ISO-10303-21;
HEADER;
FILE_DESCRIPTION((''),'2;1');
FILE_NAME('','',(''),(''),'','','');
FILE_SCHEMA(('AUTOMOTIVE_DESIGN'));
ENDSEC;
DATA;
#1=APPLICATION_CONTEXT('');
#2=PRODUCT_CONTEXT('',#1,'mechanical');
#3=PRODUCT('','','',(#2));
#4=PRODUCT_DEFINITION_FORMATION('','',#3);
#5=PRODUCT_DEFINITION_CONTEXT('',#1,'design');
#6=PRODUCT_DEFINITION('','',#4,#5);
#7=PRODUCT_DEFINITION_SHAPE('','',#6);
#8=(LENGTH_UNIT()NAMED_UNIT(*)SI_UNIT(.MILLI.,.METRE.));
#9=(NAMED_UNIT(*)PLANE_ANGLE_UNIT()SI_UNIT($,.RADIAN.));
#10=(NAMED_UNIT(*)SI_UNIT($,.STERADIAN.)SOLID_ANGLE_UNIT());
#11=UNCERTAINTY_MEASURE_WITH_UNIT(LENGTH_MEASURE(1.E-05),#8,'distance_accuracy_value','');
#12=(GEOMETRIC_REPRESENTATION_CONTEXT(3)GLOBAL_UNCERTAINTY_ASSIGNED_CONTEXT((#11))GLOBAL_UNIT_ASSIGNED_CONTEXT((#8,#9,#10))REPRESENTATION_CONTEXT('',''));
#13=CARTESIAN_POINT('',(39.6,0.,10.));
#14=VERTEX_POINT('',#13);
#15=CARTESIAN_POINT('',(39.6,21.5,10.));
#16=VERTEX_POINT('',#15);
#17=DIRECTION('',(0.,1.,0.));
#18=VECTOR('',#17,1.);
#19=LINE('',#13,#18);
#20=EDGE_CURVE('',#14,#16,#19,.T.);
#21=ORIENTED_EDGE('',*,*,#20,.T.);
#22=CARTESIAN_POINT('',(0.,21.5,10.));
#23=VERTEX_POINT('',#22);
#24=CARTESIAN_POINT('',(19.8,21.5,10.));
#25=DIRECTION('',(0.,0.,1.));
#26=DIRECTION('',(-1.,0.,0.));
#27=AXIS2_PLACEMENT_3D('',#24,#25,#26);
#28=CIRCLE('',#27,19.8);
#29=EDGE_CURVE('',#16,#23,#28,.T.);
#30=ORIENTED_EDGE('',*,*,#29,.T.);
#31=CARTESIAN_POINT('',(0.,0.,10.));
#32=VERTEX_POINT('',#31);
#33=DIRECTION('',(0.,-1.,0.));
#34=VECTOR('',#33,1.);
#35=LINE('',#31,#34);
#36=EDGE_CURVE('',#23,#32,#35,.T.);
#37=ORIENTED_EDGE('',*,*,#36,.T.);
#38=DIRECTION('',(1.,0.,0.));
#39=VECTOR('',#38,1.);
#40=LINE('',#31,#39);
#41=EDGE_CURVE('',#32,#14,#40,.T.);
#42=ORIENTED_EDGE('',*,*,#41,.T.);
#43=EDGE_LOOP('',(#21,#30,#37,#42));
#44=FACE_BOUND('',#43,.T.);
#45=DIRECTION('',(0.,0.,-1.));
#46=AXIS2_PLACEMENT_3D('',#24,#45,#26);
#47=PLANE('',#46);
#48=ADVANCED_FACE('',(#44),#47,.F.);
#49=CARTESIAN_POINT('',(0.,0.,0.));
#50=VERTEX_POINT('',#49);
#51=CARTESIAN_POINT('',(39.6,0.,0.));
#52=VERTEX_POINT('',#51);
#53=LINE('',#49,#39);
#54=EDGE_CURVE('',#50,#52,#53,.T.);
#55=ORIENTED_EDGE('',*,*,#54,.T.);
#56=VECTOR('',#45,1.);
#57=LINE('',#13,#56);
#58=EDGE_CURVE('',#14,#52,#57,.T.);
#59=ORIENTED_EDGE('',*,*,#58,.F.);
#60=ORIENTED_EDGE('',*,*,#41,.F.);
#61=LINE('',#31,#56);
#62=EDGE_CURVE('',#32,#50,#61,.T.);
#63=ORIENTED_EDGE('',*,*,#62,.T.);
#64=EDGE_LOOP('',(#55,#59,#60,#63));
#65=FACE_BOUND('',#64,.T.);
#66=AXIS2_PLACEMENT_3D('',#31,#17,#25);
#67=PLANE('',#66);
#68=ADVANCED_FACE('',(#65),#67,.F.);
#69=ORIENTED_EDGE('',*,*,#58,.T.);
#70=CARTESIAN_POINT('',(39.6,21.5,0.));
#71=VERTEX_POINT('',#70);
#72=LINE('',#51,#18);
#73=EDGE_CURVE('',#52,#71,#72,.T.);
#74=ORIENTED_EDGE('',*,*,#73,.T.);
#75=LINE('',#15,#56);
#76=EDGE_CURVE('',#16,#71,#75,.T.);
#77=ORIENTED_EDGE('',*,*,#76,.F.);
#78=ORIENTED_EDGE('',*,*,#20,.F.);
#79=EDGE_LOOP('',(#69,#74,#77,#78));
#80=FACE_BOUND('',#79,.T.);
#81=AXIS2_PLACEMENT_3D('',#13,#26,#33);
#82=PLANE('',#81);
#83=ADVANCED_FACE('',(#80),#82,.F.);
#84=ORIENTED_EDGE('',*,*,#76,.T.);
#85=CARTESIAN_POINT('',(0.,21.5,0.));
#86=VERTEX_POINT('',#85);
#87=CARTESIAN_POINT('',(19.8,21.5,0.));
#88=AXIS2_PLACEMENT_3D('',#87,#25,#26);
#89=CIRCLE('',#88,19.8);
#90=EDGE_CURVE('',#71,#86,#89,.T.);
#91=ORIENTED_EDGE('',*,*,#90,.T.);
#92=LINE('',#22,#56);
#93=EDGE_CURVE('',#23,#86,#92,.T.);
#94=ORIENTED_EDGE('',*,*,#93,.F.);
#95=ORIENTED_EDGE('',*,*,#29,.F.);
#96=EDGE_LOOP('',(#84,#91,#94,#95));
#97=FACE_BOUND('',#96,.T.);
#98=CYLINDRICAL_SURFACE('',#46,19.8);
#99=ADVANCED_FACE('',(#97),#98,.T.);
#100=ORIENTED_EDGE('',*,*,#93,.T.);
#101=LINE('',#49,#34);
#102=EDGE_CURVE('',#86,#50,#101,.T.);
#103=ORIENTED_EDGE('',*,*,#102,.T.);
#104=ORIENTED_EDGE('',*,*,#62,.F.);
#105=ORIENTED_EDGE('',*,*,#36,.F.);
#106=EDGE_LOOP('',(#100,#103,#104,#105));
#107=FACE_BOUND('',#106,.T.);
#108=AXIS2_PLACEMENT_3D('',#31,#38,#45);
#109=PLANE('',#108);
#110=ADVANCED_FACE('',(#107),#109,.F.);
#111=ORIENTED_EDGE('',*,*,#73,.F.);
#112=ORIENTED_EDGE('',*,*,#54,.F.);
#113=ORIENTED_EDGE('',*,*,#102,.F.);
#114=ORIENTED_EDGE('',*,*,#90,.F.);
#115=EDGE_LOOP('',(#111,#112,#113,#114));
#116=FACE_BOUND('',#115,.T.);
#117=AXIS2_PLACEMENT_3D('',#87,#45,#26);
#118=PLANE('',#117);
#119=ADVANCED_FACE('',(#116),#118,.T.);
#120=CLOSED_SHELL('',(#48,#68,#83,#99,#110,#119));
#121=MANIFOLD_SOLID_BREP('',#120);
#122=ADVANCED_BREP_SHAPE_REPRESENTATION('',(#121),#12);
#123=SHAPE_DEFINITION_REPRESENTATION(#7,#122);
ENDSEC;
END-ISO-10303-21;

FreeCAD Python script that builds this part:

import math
import FreeCAD as App
import Part
import Sketcher
from FreeCAD import Vector

doc = App.newDocument("Part")
body = doc.addObject("PartDesign::Body", "Body")

sketch1 = body.newObject("Sketcher::SketchObject", "Sketch")
sketch1.AttachmentSupport = (doc.getObject("XY_Plane"), [""])
sketch1.MapMode = "FlatFace"
sketch1.addGeometry(Part.LineSegment(Vector(0, 0, 0), Vector(40, 0, 0)), False)
sketch1.addGeometry(Part.LineSegment(Vector(40, 0, 0), Vector(40, 22, 0)), False)
sketch1.addGeometry(Part.ArcOfCircle(Part.Circle(Vector(20, 22, 0), Vector(0, 0, 1), 20), math.radians(0), math.radians(180)), False)
sketch1.addGeometry(Part.LineSegment(Vector(0, 22, 0), Vector(0, 0, 0)), False)
sketch1.addConstraint(Sketcher.Constraint("Coincident", 0, 2, 1, 1))
sketch1.addConstraint(Sketcher.Constraint("Tangent", 1, 2, 2, 1))
sketch1.addConstraint(Sketcher.Constraint("Tangent", 2, 2, 3, 1))
sketch1.addConstraint(Sketcher.Constraint("Coincident", 3, 2, 0, 1))
sketch1.addConstraint(Sketcher.Constraint("Horizontal", 0))
sketch1.addConstraint(Sketcher.Constraint("Vertical", 1))
sketch1.addConstraint(Sketcher.Constraint("Vertical", 3))
sketch1.addConstraint(Sketcher.Constraint("Coincident", 3, 2, -1, 1))
sketch1.addConstraint(Sketcher.Constraint("Radius", 2, 19.8))
sketch1.addConstraint(Sketcher.Constraint("DistanceY", 1, 1, 1, 2, 21.5))
pad1 = body.newObject("PartDesign::Pad", "Pad")
pad1.Profile = sketch1
pad1.Length = 10

doc.recompute()
